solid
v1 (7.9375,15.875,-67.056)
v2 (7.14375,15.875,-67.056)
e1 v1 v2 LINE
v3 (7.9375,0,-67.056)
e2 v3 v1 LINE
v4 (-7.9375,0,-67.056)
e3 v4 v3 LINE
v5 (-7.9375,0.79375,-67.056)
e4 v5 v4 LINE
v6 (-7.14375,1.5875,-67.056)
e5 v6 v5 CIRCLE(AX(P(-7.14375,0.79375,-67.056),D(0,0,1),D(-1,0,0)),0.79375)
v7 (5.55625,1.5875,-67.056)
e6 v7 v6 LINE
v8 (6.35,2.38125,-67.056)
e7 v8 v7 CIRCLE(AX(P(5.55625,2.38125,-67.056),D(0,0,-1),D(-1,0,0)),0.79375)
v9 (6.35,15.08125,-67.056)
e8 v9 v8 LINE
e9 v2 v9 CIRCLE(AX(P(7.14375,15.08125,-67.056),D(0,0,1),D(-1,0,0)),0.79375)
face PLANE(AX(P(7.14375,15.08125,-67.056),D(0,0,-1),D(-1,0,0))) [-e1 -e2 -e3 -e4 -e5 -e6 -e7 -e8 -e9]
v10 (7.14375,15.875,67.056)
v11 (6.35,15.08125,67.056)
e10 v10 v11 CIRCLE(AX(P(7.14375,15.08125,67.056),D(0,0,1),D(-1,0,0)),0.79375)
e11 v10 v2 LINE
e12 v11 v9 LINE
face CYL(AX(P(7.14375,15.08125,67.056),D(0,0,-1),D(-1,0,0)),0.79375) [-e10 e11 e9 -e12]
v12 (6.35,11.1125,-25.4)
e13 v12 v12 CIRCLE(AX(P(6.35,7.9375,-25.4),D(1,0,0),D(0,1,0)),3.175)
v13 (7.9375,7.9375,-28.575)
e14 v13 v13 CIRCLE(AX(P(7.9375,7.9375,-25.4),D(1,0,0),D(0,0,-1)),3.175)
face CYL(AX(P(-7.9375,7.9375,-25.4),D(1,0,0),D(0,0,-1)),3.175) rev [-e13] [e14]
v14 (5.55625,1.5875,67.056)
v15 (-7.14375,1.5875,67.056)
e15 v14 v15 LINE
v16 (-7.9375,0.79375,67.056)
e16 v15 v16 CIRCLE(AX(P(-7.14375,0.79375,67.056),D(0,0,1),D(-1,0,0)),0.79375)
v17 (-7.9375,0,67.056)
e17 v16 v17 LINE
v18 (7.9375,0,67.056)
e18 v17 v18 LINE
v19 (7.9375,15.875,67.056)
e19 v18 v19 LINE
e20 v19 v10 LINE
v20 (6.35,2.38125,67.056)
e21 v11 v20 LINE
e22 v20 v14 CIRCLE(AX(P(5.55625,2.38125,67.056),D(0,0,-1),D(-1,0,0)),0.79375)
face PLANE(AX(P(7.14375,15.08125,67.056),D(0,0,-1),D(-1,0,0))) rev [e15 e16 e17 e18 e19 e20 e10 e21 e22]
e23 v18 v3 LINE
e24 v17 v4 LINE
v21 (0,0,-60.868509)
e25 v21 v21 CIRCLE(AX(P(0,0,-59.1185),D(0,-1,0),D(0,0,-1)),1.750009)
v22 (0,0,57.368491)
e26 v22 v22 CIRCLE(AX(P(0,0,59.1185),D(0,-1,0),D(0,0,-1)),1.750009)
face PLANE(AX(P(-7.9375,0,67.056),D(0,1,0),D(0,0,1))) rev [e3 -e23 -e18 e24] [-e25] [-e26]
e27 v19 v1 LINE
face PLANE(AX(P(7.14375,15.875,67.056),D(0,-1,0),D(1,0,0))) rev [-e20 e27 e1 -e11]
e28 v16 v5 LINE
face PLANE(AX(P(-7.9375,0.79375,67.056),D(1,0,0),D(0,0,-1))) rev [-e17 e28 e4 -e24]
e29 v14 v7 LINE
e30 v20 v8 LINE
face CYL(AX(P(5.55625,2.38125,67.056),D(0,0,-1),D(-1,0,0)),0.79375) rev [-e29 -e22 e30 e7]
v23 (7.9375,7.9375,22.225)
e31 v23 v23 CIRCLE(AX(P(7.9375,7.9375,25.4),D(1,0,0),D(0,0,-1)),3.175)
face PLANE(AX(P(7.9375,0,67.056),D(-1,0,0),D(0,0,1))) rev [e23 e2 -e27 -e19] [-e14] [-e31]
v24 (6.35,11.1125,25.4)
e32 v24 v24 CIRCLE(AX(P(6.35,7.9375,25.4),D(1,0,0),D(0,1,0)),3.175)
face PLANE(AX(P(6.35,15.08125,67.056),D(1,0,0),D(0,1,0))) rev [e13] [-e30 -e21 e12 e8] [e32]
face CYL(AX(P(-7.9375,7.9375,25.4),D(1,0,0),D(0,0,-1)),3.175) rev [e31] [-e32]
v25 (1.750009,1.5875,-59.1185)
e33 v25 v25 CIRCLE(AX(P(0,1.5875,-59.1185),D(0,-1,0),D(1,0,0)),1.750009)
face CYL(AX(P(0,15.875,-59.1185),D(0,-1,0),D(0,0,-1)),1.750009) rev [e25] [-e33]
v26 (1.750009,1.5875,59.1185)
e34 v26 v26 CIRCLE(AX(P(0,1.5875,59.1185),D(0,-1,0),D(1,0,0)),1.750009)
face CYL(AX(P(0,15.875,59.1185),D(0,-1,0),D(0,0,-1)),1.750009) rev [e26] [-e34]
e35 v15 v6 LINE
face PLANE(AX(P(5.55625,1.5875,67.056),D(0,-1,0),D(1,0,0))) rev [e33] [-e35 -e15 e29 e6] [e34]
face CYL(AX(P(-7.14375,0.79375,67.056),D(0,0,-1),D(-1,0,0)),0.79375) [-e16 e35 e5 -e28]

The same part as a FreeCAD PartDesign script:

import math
import FreeCAD as App
import Part
import Sketcher
from FreeCAD import Vector
Q = App.Units.Quantity

doc = App.newDocument("Part")
params = doc.addObject("Spreadsheet::Sheet", "Params")
for row, (alias, value) in enumerate([
    ("sketch1_width", "0.5 in"),
    ("sketch1_radius", "0.03125 in"),
    ("sketch1_width2", "0.625 in"),
    ("pad1_length", "5.28 in"),
    ("sketch2_diameter", "0.25 in"),
], start=1):
    params.set(f"A{row}", alias)
    params.set(f"B{row}", "=" + value)
    params.setAlias(f"B{row}", alias)

body = doc.addObject("PartDesign::Body", "Body")

# Sketch on XY plane
sketch1 = doc.addObject("Sketcher::SketchObject", "Sketch")
body.addObject(sketch1)
sketch1.AttachmentSupport = (doc.XY_Plane, [""])
sketch1.MapMode = "FlatFace"
sketch1.addGeometry([
    Part.LineSegment(Vector(-7.9375, 0, 0), Vector(7.9375, 0, 0)),  # 0
    Part.LineSegment(Vector(7.9375, 0, 0), Vector(7.9375, 15.875, 0)),  # 1
    Part.LineSegment(Vector(7.9375, 15.875, 0), Vector(7.14375, 15.875, 0)),  # 2
    Part.ArcOfCircle(Part.Circle(Vector(7.14375, 15.08125, 0), Vector(0, 0, 1), 0.79375), math.radians(90), math.radians(180)),  # 3
    Part.LineSegment(Vector(6.35, 15.08125, 0), Vector(6.35, 2.38125, 0)),  # 4
    Part.ArcOfCircle(Part.Circle(Vector(5.55625, 2.38125, 0), Vector(0, 0, 1), 0.79375), math.radians(-90), math.radians(0)),  # 5
    Part.LineSegment(Vector(5.55625, 1.5875, 0), Vector(-7.14375, 1.5875, 0)),  # 6
    Part.ArcOfCircle(Part.Circle(Vector(-7.14375, 0.79375, 0), Vector(0, 0, 1), 0.79375), math.radians(90), math.radians(180)),  # 7
    Part.LineSegment(Vector(-7.9375, 0.79375, 0), Vector(-7.9375, 0, 0)),  # 8
], False)
sketch1.addConstraint([
    Sketcher.Constraint("Coincident", 0, 2, 1, 1),
    Sketcher.Constraint("Coincident", 1, 2, 2, 1),
    Sketcher.Constraint("Tangent", 2, 2, 3, 1),
    Sketcher.Constraint("Tangent", 3, 2, 4, 1),
    Sketcher.Constraint("Tangent", 4, 2, 5, 2),
    Sketcher.Constraint("Tangent", 5, 1, 6, 1),
    Sketcher.Constraint("Tangent", 6, 2, 7, 1),
    Sketcher.Constraint("Tangent", 7, 2, 8, 1),
    Sketcher.Constraint("Coincident", 8, 2, 0, 1),
    Sketcher.Constraint("Horizontal", 0),
    Sketcher.Constraint("Vertical", 1),
    Sketcher.Constraint("Horizontal", 2),
    Sketcher.Constraint("Vertical", 4),
    Sketcher.Constraint("Horizontal", 6),
    Sketcher.Constraint("Vertical", 8),
    Sketcher.Constraint("Equal", 3, 5),
    Sketcher.Constraint("Equal", 5, 7),
    Sketcher.Constraint("Symmetric", 0, 2, 8, 2, -1, 1),
    Sketcher.Constraint("Equal", 0, 1),
    Sketcher.Constraint("Equal", 6, 4),
    Sketcher.Constraint("DistanceX", 6, 2, 6, 1, Q("0.5 in")),
    Sketcher.Constraint("Radius", 3, Q("0.03125 in")),
    Sketcher.Constraint("DistanceX", 0, 1, 0, 2, Q("0.625 in")),
])
sketch1.setExpression("Constraints[20]", "Params.sketch1_width")
sketch1.setExpression("Constraints[21]", "Params.sketch1_radius")
sketch1.setExpression("Constraints[22]", "Params.sketch1_width2")
pad1 = doc.addObject("PartDesign::Pad", "Pad")
body.addObject(pad1)
pad1.Profile = sketch1
pad1.setExpression("Length", "Params.pad1_length")
pad1.Midplane = True

# Sketch on YZ plane
sketch2 = doc.addObject("Sketcher::SketchObject", "Sketch001")
body.addObject(sketch2)
sketch2.AttachmentSupport = (doc.YZ_Plane, [""])
sketch2.MapMode = "FlatFace"
sketch2.AttachmentOffset = App.Placement(Vector(0, 0, 0.3125 * 25.4), App.Rotation())
sketch2.addGeometry([
    Part.Circle(Vector(7.9375, 25.4, 0), Vector(0, 0, 1), 3.175),
    Part.Circle(Vector(7.9375, -25.4, 0), Vector(0, 0, 1), 3.175),
], False)
sketch2.addConstraint([
    Sketcher.Constraint("Equal", 0, 1),
    Sketcher.Constraint("Symmetric", 0, 3, 1, 3, -1),
    Sketcher.Constraint("Diameter", 0, Q("0.25 in")),
    Sketcher.Constraint("DistanceY", -1, 1, 0, 3, Q("1 in")),
    Sketcher.Constraint("DistanceX", -1, 1, 0, 3, Q("0.3125 in")),
])
sketch2.setExpression("Constraints[2]", "Params.sketch2_diameter")
pocket1 = doc.addObject("PartDesign::Pocket", "Pocket")
body.addObject(pocket1)
pocket1.Profile = sketch2
pocket1.Type = "ThroughAll"

# Sketch on XZ plane
sketch3 = doc.addObject("Sketcher::SketchObject", "Sketch002")
body.addObject(sketch3)
sketch3.AttachmentSupport = (doc.XZ_Plane, [""])
sketch3.MapMode = "FlatFace"
sketch3.addGeometry([
    Part.Circle(Vector(0, -59.1185, 0), Vector(0, 0, 1), 1.750009),
    Part.Circle(Vector(0, 59.1185, 0), Vector(0, 0, 1), 1.750009),
], False)
sketch3.addConstraint([
    Sketcher.Constraint("Equal", 0, 1),
    Sketcher.Constraint("Symmetric", 0, 3, 1, 3, -1, 1),
    Sketcher.Constraint("PointOnObject", 0, 3, -2),
    Sketcher.Constraint("Diameter", 0, Q("3.500018 mm")),
    Sketcher.Constraint("DistanceY", 0, 3, 1, 3, Q("4.655 in")),
])
pocket2 = doc.addObject("PartDesign::Pocket", "Pocket001")
body.addObject(pocket2)
pocket2.Profile = sketch3
pocket2.Type = "ThroughAll"

doc.recompute()
